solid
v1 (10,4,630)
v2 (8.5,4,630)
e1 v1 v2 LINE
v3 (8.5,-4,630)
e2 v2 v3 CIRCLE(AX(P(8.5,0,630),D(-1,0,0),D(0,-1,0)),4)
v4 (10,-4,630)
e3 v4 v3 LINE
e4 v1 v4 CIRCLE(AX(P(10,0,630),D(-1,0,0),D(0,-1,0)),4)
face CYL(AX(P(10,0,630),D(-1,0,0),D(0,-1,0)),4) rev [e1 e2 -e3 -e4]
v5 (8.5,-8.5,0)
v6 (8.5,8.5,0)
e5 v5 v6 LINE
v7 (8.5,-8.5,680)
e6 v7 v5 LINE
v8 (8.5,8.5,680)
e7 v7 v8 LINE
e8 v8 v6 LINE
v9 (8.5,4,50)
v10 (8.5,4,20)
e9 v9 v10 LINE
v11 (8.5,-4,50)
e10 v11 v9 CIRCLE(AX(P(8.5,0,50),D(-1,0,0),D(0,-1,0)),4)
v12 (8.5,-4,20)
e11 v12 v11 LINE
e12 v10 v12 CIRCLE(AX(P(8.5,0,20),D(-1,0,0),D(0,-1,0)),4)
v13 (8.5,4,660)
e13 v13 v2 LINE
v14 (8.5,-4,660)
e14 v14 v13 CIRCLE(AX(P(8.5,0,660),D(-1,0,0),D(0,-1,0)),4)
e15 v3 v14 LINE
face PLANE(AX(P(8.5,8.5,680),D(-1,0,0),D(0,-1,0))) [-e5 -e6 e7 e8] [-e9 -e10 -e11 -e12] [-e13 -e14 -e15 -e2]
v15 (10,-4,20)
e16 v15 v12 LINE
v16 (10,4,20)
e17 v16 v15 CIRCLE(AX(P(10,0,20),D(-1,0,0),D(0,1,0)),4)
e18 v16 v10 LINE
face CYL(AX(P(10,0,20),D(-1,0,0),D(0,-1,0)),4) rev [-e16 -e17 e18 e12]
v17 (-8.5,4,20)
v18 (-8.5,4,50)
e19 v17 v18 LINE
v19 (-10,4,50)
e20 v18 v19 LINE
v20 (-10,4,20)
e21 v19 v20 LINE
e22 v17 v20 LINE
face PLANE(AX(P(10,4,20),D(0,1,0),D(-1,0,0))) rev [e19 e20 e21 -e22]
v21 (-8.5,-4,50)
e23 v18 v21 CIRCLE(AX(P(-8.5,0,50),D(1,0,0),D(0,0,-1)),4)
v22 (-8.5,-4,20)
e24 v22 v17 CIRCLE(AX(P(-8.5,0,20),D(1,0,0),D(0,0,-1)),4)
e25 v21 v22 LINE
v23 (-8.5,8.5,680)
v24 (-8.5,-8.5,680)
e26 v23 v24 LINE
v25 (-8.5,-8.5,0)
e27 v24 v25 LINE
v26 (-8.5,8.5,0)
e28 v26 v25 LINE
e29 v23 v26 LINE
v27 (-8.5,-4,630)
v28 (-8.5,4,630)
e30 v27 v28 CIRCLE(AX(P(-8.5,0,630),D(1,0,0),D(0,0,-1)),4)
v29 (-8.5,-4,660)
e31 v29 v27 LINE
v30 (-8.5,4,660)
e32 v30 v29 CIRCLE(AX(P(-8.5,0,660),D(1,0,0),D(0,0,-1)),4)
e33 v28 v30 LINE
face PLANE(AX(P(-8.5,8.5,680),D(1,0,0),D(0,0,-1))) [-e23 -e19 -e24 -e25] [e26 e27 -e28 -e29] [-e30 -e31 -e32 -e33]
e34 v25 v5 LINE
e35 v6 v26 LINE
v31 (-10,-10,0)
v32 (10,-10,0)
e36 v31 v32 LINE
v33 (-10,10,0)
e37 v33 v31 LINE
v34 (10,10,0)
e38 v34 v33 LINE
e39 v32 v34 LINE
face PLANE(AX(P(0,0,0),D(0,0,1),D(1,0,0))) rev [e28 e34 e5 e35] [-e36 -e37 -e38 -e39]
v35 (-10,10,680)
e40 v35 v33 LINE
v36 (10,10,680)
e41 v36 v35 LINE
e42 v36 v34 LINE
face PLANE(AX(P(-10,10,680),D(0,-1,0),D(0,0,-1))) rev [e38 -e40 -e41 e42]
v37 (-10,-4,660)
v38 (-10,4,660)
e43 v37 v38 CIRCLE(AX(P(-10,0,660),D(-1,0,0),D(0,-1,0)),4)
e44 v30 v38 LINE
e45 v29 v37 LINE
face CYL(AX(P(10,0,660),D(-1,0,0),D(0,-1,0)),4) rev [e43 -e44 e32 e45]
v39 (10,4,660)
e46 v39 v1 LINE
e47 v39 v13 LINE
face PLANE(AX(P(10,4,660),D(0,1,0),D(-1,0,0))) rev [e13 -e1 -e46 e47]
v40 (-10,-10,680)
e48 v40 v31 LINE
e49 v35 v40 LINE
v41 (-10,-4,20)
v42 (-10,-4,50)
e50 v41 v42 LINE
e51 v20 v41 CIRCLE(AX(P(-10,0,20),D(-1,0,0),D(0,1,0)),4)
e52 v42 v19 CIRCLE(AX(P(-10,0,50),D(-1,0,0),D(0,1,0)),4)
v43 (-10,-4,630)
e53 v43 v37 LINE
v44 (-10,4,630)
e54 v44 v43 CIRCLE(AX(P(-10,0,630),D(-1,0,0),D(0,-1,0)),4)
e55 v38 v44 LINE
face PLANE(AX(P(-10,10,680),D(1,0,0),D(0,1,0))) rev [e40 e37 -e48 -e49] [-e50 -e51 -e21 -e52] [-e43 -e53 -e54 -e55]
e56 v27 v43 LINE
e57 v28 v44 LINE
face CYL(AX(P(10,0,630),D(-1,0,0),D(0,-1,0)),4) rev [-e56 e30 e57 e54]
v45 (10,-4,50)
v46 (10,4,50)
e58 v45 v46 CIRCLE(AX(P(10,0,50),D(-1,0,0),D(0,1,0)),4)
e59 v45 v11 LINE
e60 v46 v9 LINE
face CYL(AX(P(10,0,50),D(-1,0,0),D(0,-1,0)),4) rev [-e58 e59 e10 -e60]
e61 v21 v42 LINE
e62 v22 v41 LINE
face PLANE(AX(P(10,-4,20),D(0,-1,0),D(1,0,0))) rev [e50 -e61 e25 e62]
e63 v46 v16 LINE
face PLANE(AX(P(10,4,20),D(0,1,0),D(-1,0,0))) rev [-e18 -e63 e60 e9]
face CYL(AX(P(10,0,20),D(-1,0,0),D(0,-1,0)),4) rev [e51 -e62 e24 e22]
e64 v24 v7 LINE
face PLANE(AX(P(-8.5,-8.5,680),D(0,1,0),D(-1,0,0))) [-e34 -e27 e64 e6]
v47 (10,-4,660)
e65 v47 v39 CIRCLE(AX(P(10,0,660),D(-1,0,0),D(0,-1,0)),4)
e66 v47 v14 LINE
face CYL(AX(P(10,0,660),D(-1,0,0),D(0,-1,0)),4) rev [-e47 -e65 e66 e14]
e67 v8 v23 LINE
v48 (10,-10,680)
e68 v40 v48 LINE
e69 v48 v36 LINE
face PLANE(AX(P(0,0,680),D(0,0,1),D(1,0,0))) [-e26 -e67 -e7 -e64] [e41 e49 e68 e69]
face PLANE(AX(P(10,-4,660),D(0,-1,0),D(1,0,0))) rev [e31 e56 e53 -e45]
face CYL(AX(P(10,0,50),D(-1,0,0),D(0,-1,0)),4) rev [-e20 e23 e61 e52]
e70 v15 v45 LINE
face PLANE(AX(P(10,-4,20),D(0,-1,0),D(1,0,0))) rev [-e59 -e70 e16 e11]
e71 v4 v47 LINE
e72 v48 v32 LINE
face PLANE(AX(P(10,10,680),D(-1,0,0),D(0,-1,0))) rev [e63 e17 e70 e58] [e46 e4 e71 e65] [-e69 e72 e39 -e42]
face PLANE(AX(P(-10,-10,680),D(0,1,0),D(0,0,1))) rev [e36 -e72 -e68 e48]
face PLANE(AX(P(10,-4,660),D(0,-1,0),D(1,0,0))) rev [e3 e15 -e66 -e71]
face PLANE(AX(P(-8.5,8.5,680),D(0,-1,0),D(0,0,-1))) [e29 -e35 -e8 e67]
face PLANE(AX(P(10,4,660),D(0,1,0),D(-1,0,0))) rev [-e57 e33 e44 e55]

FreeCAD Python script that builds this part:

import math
import FreeCAD as App
import Part
import Sketcher
from FreeCAD import Vector


def add_polygon(sketch, points):
    """Adds a closed chain of lines whose ends are joined by coincident constraints."""
    first, n = sketch.GeometryCount, len(points)
    for a, b in zip(points, points[1:] + points[:1]):
        sketch.addGeometry(Part.LineSegment(App.Vector(*a, 0), App.Vector(*b, 0)), False)
    for i in range(n):
        sketch.addConstraint(Sketcher.Constraint("Coincident", first + i, 2, first + (i + 1) % n, 1))

doc = App.newDocument("Part")
params = doc.addObject("Spreadsheet::Sheet", "Params")
for row, (alias, value) in enumerate([
    ("sketch1_width", "20 mm"),
    ("sketch1_width2", "17 mm"),
    ("pad1_length", "680 mm"),
    ("sketch2_radius", "4 mm"),
    ("sketch2_height", "30 mm"),
], start=1):
    params.set(f"A{row}", alias)
    params.set(f"B{row}", "=" + value)
    params.setAlias(f"B{row}", alias)

body = doc.addObject("PartDesign::Body", "Body")

# Sketch on XY plane
sketch1 = doc.addObject("Sketcher::SketchObject", "Sketch")
body.addObject(sketch1)
sketch1.AttachmentSupport = (doc.XY_Plane, [""])
sketch1.MapMode = "FlatFace"
add_polygon(sketch1, [(-10, 10), (-10, -10), (10, -10), (10, 10)])  # lines 0-3
add_polygon(sketch1, [(8, -8), (-8, -8), (-8, 8), (8, 8)])  # lines 4-7
sketch1.addConstraint([
    Sketcher.Constraint("Vertical", 0),
    Sketcher.Constraint("Horizontal", 1),
    Sketcher.Constraint("Vertical", 2),
    Sketcher.Constraint("Horizontal", 3),
    Sketcher.Constraint("Horizontal", 4),
    Sketcher.Constraint("Vertical", 5),
    Sketcher.Constraint("Horizontal", 6),
    Sketcher.Constraint("Vertical", 7),
    Sketcher.Constraint("Symmetric", 0, 2, 2, 2, -1, 1),
    Sketcher.Constraint("Symmetric", 4, 2, 6, 2, -1, 1),
    Sketcher.Constraint("Equal", 3, 0),
    Sketcher.Constraint("Equal", 6, 5),
    Sketcher.Constraint("DistanceX", 1, 1, 1, 2, 20.0),
    Sketcher.Constraint("DistanceX", 4, 2, 4, 1, 17.0),
])
sketch1.setExpression("Constraints[20]", "Params.sketch1_width")
sketch1.setExpression("Constraints[21]", "Params.sketch1_width2")
pad1 = doc.addObject("PartDesign::Pad", "Pad")
body.addObject(pad1)
pad1.Profile = sketch1
pad1.setExpression("Length", "Params.pad1_length")

# Sketch on YZ plane
sketch2 = doc.addObject("Sketcher::SketchObject", "Sketch001")
body.addObject(sketch2)
sketch2.AttachmentSupport = (doc.YZ_Plane, [""])
sketch2.MapMode = "FlatFace"
sketch2.AttachmentOffset = App.Placement(Vector(0, 0, -10), App.Rotation())
sketch2.addGeometry([
    Part.LineSegment(Vector(-4, 630, 0), Vector(-4, 660, 0)),  # 0
    Part.ArcOfCircle(Part.Circle(Vector(0, 660, 0), Vector(0, 0, 1), 4), math.radians(0), math.radians(180)),  # 1
    Part.LineSegment(Vector(4, 660, 0), Vector(4, 630, 0)),  # 2
    Part.ArcOfCircle(Part.Circle(Vector(0, 630, 0), Vector(0, 0, 1), 4), math.radians(180), math.radians(360)),  # 3
    Part.LineSegment(Vector(-4, 20, 0), Vector(-4, 50, 0)),  # 4
    Part.ArcOfCircle(Part.Circle(Vector(0, 50, 0), Vector(0, 0, 1), 4), math.radians(0), math.radians(180)),  # 5
    Part.LineSegment(Vector(4, 50, 0), Vector(4, 20, 0)),  # 6
    Part.ArcOfCircle(Part.Circle(Vector(0, 20, 0), Vector(0, 0, 1), 4), math.radians(180), math.radians(360)),  # 7
], False)
sketch2.addConstraint([
    Sketcher.Constraint("Tangent", 0, 2, 1, 2),
    Sketcher.Constraint("Tangent", 1, 1, 2, 1),
    Sketcher.Constraint("Tangent", 2, 2, 3, 2),
    Sketcher.Constraint("Tangent", 3, 1, 0, 1),
    Sketcher.Constraint("Tangent", 4, 2, 5, 2),
    Sketcher.Constraint("Tangent", 5, 1, 6, 1),
    Sketcher.Constraint("Tangent", 6, 2, 7, 2),
    Sketcher.Constraint("Tangent", 7, 1, 4, 1),
    Sketcher.Constraint("Vertical", 0),
    Sketcher.Constraint("Vertical", 2),
    Sketcher.Constraint("Vertical", 4),
    Sketcher.Constraint("Vertical", 6),
    Sketcher.Constraint("Equal", 3, 5),
    Sketcher.Constraint("PointOnObject", 1, 3, -2),
    Sketcher.Constraint("PointOnObject", 5, 3, -2),
    Sketcher.Constraint("Equal", 2, 4),
    Sketcher.Constraint("Radius", 1, 4.0),
    Sketcher.Constraint("DistanceY", 0, 1, 0, 2, 30.0),
    Sketcher.Constraint("DistanceY", -1, 1, 1, 3, 660.0),
    Sketcher.Constraint("DistanceY", -1, 1, 5, 3, 50.0),
])
sketch2.setExpression("Constraints[16]", "Params.sketch2_radius")
sketch2.setExpression("Constraints[17]", "Params.sketch2_height")
pocket1 = doc.addObject("PartDesign::Pocket", "Pocket")
body.addObject(pocket1)
pocket1.Profile = sketch2
pocket1.Type = "ThroughAll"
pocket1.Reversed = True

doc.recompute()
